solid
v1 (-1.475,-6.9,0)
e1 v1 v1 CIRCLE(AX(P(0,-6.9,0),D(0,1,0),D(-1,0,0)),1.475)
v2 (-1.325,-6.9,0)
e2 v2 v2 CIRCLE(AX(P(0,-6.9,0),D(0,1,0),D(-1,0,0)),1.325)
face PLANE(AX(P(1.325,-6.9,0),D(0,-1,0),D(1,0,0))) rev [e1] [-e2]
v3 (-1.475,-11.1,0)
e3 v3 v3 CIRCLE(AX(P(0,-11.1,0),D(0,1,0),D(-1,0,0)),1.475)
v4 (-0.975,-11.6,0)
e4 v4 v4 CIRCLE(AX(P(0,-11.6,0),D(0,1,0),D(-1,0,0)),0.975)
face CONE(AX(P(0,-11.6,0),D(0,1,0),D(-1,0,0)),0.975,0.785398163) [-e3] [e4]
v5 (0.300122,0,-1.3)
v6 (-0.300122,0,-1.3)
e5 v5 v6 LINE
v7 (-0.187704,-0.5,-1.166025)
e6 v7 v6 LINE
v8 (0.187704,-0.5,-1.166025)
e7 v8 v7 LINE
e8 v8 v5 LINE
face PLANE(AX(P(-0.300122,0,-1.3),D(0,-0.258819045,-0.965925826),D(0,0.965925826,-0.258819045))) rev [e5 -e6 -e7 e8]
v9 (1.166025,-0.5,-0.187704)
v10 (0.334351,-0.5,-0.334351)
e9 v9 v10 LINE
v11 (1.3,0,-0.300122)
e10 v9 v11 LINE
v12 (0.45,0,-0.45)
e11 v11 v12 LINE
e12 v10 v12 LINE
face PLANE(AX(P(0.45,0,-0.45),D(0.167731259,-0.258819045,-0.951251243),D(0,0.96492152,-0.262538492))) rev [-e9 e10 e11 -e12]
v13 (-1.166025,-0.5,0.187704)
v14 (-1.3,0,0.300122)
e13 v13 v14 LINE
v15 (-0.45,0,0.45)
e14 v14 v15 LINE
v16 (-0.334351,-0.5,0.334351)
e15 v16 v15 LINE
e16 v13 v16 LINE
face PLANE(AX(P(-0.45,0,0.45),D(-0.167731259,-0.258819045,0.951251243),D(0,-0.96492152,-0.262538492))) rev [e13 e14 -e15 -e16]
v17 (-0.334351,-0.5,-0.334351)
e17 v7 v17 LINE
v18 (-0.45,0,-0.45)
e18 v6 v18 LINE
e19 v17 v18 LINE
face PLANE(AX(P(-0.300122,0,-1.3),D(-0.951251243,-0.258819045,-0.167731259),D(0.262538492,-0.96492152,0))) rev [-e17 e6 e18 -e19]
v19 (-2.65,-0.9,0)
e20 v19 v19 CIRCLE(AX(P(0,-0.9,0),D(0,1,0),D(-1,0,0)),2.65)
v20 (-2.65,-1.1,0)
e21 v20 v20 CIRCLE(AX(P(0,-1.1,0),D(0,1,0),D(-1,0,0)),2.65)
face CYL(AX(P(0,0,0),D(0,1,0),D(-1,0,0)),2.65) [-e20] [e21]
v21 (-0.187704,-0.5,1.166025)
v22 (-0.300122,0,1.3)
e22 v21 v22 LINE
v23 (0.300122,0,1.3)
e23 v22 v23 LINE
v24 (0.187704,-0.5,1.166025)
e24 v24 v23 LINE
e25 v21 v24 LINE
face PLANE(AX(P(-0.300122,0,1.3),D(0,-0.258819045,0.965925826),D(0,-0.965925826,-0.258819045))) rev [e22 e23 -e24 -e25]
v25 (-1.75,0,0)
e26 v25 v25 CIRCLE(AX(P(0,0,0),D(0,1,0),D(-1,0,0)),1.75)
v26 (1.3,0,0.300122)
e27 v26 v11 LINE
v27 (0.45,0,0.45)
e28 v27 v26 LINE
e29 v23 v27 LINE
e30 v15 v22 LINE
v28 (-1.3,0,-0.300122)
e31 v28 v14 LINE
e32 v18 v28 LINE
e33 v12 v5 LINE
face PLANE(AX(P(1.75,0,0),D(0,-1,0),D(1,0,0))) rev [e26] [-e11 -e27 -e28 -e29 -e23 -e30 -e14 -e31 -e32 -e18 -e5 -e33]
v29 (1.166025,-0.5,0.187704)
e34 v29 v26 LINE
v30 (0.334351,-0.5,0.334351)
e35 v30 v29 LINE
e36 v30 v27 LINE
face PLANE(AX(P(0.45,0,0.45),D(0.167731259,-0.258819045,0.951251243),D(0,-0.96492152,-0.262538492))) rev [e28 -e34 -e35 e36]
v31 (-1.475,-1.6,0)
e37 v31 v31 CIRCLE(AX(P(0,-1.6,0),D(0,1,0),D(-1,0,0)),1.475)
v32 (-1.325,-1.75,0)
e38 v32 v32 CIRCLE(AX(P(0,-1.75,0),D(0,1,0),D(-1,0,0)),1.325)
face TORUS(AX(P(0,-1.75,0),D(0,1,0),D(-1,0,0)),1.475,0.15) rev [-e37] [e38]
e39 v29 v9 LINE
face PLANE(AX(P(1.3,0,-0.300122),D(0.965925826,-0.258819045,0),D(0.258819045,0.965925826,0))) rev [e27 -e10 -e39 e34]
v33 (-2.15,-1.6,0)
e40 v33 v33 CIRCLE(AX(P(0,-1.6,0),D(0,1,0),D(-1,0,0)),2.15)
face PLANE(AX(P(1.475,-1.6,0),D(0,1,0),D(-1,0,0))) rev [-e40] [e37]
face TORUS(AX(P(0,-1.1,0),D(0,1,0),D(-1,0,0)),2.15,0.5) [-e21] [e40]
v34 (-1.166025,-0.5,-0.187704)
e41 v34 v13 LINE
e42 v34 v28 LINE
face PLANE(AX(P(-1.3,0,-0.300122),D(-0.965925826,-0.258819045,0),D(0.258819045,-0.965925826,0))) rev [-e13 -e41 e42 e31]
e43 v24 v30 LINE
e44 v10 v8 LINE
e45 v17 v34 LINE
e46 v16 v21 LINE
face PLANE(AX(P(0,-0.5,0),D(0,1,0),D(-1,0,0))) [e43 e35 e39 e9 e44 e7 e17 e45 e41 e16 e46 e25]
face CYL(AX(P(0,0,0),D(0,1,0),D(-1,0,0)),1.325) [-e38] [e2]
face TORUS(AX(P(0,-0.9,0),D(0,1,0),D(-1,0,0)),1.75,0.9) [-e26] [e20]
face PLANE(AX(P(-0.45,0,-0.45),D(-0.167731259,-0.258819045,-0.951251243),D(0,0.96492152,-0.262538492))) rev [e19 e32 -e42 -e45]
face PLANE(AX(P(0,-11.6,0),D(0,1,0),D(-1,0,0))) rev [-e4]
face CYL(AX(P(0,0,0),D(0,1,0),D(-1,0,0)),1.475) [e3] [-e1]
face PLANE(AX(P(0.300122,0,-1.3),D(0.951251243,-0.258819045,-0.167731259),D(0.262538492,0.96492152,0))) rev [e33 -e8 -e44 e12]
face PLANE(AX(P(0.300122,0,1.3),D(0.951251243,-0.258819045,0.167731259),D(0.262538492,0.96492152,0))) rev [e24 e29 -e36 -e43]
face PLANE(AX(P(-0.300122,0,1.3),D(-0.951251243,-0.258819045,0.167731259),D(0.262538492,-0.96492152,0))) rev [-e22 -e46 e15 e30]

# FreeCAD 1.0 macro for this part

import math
import FreeCAD as App
import Part
import Sketcher
from FreeCAD import Vector
Q = App.Units.Quantity


def add_polygon(sketch, points):
    """Adds a closed chain of lines whose ends are joined by coincident constraints."""
    first, n = sketch.GeometryCount, len(points)
    for a, b in zip(points, points[1:] + points[:1]):
        sketch.addGeometry(Part.LineSegment(App.Vector(*a, 0), App.Vector(*b, 0)), False)
    for i in range(n):
        sketch.addConstraint(Sketcher.Constraint("Coincident", first + i, 2, first + (i + 1) % n, 1))

doc = App.newDocument("Part")
params = doc.addObject("Spreadsheet::Sheet", "Params")
for row, (alias, value) in enumerate([
    ("sketch1_radius", "0.5 mm"),
    ("sketch1_radius2", "0.9 mm"),
    ("sketch1_radius3", "0.15 mm"),
    ("sketch1_height", "4.2 mm"),
    ("sketch1_height2", "0.2 mm"),
    ("revolution_angle", "360 deg"),
    ("pocket1_length", "0.5 mm"),
    ("pocket1_taper", "-15 deg"),
], start=1):
    params.set(f"A{row}", alias)
    params.set(f"B{row}", "=" + value)
    params.setAlias(f"B{row}", alias)

body = doc.addObject("PartDesign::Body", "Body")

# Sketch on XY plane
sketch1 = body.newObject("Sketcher::SketchObject", "Sketch")
sketch1.AttachmentSupport = (doc.getObject("XY_Plane"), [""])
sketch1.MapMode = "FlatFace"
sketch1.addGeometry(Part.LineSegment(Vector(0, -11.6, 0), Vector(0.97, -11.6, 0)), False)
sketch1.addGeometry(Part.LineSegment(Vector(0.97, -11.6, 0), Vector(1.48, -11.1, 0)), False)
sketch1.addGeometry(Part.LineSegment(Vector(1.48, -11.1, 0), Vector(1.48, -6.9, 0)), False)
sketch1.addGeometry(Part.LineSegment(Vector(1.48, -6.9, 0), Vector(1.32, -6.9, 0)), False)
sketch1.addGeometry(Part.LineSegment(Vector(1.32, -6.9, 0), Vector(1.32, -1.75, 0)), False)
sketch1.addGeometry(Part.ArcOfCircle(Part.Circle(Vector(1.48, -1.75, 0), Vector(0, 0, 1), 0.15), math.radians(90), math.radians(180)), False)
sketch1.addGeometry(Part.LineSegment(Vector(1.48, -1.6, 0), Vector(2.15, -1.6, 0)), False)
sketch1.addGeometry(Part.ArcOfCircle(Part.Circle(Vector(2.15, -1.1, 0), Vector(0, 0, 1), 0.5), math.radians(-90), math.radians(0)), False)
sketch1.addGeometry(Part.LineSegment(Vector(2.65, -1.1, 0), Vector(2.65, -0.9, 0)), False)
sketch1.addGeometry(Part.ArcOfCircle(Part.Circle(Vector(1.75, -0.9, 0), Vector(0, 0, 1), 0.9), math.radians(0), math.radians(90)), False)
sketch1.addGeometry(Part.LineSegment(Vector(1.75, 0, 0), Vector(0, 0, 0)), False)
sketch1.addGeometry(Part.LineSegment(Vector(0, 0, 0), Vector(0, -11.6, 0)), False)
sketch1.addConstraint(Sketcher.Constraint("Coincident", 0, 2, 1, 1))
sketch1.addConstraint(Sketcher.Constraint("Coincident", 1, 2, 2, 1))
sketch1.addConstraint(Sketcher.Constraint("Coincident", 2, 2, 3, 1))
sketch1.addConstraint(Sketcher.Constraint("Coincident", 3, 2, 4, 1))
sketch1.addConstraint(Sketcher.Constraint("Tangent", 4, 2, 5, 2))
sketch1.addConstraint(Sketcher.Constraint("Tangent", 5, 1, 6, 1))
sketch1.addConstraint(Sketcher.Constraint("Tangent", 6, 2, 7, 1))
sketch1.addConstraint(Sketcher.Constraint("Tangent", 7, 2, 8, 1))
sketch1.addConstraint(Sketcher.Constraint("Tangent", 8, 2, 9, 1))
sketch1.addConstraint(Sketcher.Constraint("Tangent", 9, 2, 10, 1))
sketch1.addConstraint(Sketcher.Constraint("Coincident", 10, 2, 11, 1))
sketch1.addConstraint(Sketcher.Constraint("Coincident", 11, 2, 0, 1))
sketch1.addConstraint(Sketcher.Constraint("Horizontal", 0))
sketch1.addConstraint(Sketcher.Constraint("Vertical", 2))
sketch1.addConstraint(Sketcher.Constraint("Horizontal", 3))
sketch1.addConstraint(Sketcher.Constraint("Vertical", 4))
sketch1.addConstraint(Sketcher.Constraint("Horizontal", 6))
sketch1.addConstraint(Sketcher.Constraint("Vertical", 8))
sketch1.addConstraint(Sketcher.Constraint("Horizontal", 10))
sketch1.addConstraint(Sketcher.Constraint("Vertical", 11))
sketch1.addConstraint(Sketcher.Constraint("Coincident", 10, 2, -1, 1))
sketch1.addConstraint(Sketcher.Constraint("Vertical", 5, 3, 1, 2))
sketch1.addConstraint(Sketcher.Constraint("Radius", 7, Q("0.5 mm")))
sketch1.addConstraint(Sketcher.Constraint("Radius", 9, Q("0.9 mm")))
sketch1.addConstraint(Sketcher.Constraint("Angle", 1, Q("45 deg")))
sketch1.addConstraint(Sketcher.Constraint("Radius", 5, Q("0.15 mm")))
sketch1.addConstraint(Sketcher.Constraint("DistanceY", 2, 1, 2, 2, Q("4.2 mm")))
sketch1.addConstraint(Sketcher.Constraint("DistanceY", 8, 1, 8, 2, Q("0.2 mm")))
sketch1.addConstraint(Sketcher.Constraint("DistanceY", 11, 2, 11, 1, Q("11.6 mm")))
sketch1.addConstraint(Sketcher.Constraint("DistanceY", 1, 2, 7, 3, Q("10 mm")))
sketch1.addConstraint(Sketcher.Constraint("DistanceX", 10, 2, 10, 1, Q("1.75 mm")))
sketch1.addConstraint(Sketcher.Constraint("DistanceX", 0, 1, 0, 2, Q("0.975 mm")))
sketch1.setExpression("Constraints[22]", "Params.sketch1_radius")
sketch1.setExpression("Constraints[23]", "Params.sketch1_radius2")
sketch1.setExpression("Constraints[25]", "Params.sketch1_radius3")
sketch1.setExpression("Constraints[26]", "Params.sketch1_height")
sketch1.setExpression("Constraints[27]", "Params.sketch1_height2")
revolution = body.newObject("PartDesign::Revolution", "Revolution")
revolution.Profile = sketch1
revolution.ReferenceAxis = (sketch1, ["V_Axis"])
revolution.setExpression("Angle", "Params.revolution_angle")

# Sketch on XZ plane
sketch2 = body.newObject("Sketcher::SketchObject", "Sketch001")
sketch2.AttachmentSupport = (doc.getObject("XZ_Plane"), [""])
sketch2.MapMode = "FlatFace"
add_polygon(sketch2, [(-0.3, -1.3), (-0.5, -0.5), (-1.3, -0.3), (-1.3, 0.3), (-0.5, 0.5), (-0.3, 1.3), (0.3, 1.3), (0.5, 0.5), (1.3, 0.3), (1.3, -0.3), (0.5, -0.5), (0.3, -1.3)])  # lines 0-11
sketch2.addConstraint(Sketcher.Constraint("Vertical", 2))
sketch2.addConstraint(Sketcher.Constraint("Horizontal", 5))
sketch2.addConstraint(Sketcher.Constraint("Vertical", 8))
sketch2.addConstraint(Sketcher.Constraint("Horizontal", 11))
sketch2.addConstraint(Sketcher.Constraint("Symmetric", 0, 2, 6, 2, -1, 1))
sketch2.addConstraint(Sketcher.Constraint("Symmetric", 1, 2, 7, 2, -1, 1))
sketch2.addConstraint(Sketcher.Constraint("Symmetric", 3, 2, 9, 2, -1, 1))
sketch2.addConstraint(Sketcher.Constraint("Symmetric", 4, 2, 10, 2, -1, 1))
sketch2.addConstraint(Sketcher.Constraint("Symmetric", 3, 2, 6, 2, -2))
sketch2.addConstraint(Sketcher.Constraint("Perpendicular", 0, 3))
sketch2.addConstraint(Sketcher.Constraint("Perpendicular", 1, 4))
sketch2.addConstraint(Sketcher.Constraint("Perpendicular", 3, 6))
sketch2.addConstraint(Sketcher.Constraint("Perpendicular", 6, 9))
sketch2.addConstraint(Sketcher.Constraint("Horizontal", 2, 2, 7, 2))
sketch2.addConstraint(Sketcher.Constraint("Equal", 11, 2))
sketch2.addConstraint(Sketcher.Constraint("Equal", 0, 1))
sketch2.addConstraint(Sketcher.Constraint("Angle", 0, Q("100 deg")))
sketch2.addConstraint(Sketcher.Constraint("DistanceX", 1, 2, -1, 1, Q("1.3 mm")))
sketch2.addConstraint(Sketcher.Constraint("DistanceY", 0, 2, 3, 2, Q("0.9 mm")))
pocket1 = body.newObject("PartDesign::Pocket", "Pocket")
pocket1.Profile = sketch2
pocket1.setExpression("Length", "Params.pocket1_length")
pocket1.Reversed = True
pocket1.setExpression("TaperAngle", "Params.pocket1_taper")

doc.recompute()
